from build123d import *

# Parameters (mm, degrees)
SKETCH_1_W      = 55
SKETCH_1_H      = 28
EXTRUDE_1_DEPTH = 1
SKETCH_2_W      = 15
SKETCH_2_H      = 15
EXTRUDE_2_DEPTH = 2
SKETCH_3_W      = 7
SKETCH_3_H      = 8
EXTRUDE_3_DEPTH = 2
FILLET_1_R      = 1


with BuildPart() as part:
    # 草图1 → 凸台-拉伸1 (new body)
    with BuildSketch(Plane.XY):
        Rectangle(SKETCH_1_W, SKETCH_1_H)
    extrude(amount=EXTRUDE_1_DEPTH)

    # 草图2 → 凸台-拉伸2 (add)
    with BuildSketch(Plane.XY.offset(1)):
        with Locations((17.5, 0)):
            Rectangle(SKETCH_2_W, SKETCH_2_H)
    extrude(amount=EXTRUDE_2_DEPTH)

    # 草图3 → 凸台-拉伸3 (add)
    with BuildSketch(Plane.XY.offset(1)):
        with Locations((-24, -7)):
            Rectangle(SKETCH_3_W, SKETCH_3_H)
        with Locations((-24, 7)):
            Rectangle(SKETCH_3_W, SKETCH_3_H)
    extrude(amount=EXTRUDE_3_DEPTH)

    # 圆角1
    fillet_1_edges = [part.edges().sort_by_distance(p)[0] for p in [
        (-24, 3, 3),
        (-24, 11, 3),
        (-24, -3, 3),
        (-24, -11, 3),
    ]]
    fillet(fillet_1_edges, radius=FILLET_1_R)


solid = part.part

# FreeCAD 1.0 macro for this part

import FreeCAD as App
import Part
import Sketcher

V = App.Vector


def edges_at(feature, points):
    """Names of the edges that pass closest to the given points."""
    edges = feature.Shape.Edges
    near = lambda p: min(range(len(edges)), key=lambda i: edges[i].distToShape(Part.Vertex(*p))[0])
    return sorted({f"Edge{near(p) + 1}" for p in points})


def add_polygon(sketch, points):
    """Adds a closed chain of lines whose ends are joined by coincident constraints."""
    first, n = sketch.GeometryCount, len(points)
    for a, b in zip(points, points[1:] + points[:1]):
        sketch.addGeometry(Part.LineSegment(App.Vector(*a, 0), App.Vector(*b, 0)), False)
    for i in range(n):
        sketch.addConstraint(Sketcher.Constraint("Coincident", first + i, 2, first + (i + 1) % n, 1))

doc = App.newDocument("Part")
body = doc.addObject("PartDesign::Body", "Body")

sketch1 = body.newObject("Sketcher::SketchObject", "Sketch")
sketch1.AttachmentSupport = (doc.getObject("XY_Plane"), [""])
sketch1.MapMode = "FlatFace"
add_polygon(sketch1, [(-28, 14), (-28, -14), (28, -14), (28, 14)])
sketch1.addConstraint([
    Sketcher.Constraint("Vertical", 0),
    Sketcher.Constraint("Horizontal", 1),
    Sketcher.Constraint("Vertical", 2),
    Sketcher.Constraint("Horizontal", 3),
    Sketcher.Constraint("Symmetric", 0, 2, 2, 2, -1, 1),
    Sketcher.Constraint("DistanceX", 1, 1, 1, 2, 55.0),
    Sketcher.Constraint("DistanceY", 0, 2, 0, 1, 28.0),
])
pad1 = body.newObject("PartDesign::Pad", "Pad")
pad1.Profile = sketch1
pad1.Length = 1

sketch2 = body.newObject("Sketcher::SketchObject", "Sketch001")
sketch2.AttachmentSupport = (doc.getObject("XY_Plane"), [""])
sketch2.MapMode = "FlatFace"
sketch2.AttachmentOffset = App.Placement(V(0, 0, 1), App.Rotation())
add_polygon(sketch2, [(10, 8), (10, -8), (25, -8), (25, 8)])
sketch2.addConstraint([
    Sketcher.Constraint("Vertical", 0),
    Sketcher.Constraint("Horizontal", 1),
    Sketcher.Constraint("Vertical", 2),
    Sketcher.Constraint("Horizontal", 3),
    Sketcher.Constraint("Equal", 3, 0),
    Sketcher.Constraint("DistanceX", 1, 1, 1, 2, 15.0),
    Sketcher.Constraint("DistanceX", -1, 1, 0, 2, 10.0),
    Sketcher.Constraint("DistanceY", 0, 2, -1, 1, 7.5),
])
pad2 = body.newObject("PartDesign::Pad", "Pad001")
pad2.Profile = sketch2
pad2.Length = 2

sketch3 = body.newObject("Sketcher::SketchObject", "Sketch002")
sketch3.AttachmentSupport = (doc.getObject("XY_Plane"), [""])
sketch3.MapMode = "FlatFace"
sketch3.AttachmentOffset = App.Placement(V(0, 0, 1), App.Rotation())
add_polygon(sketch3, [(-28, -3), (-28, -11), (-20, -11), (-20, -3)])
add_polygon(sketch3, [(-28, 11), (-28, 3), (-20, 3), (-20, 11)])
sketch3.addConstraint([
    Sketcher.Constraint("Vertical", 0),
    Sketcher.Constraint("Horizontal", 1),
    Sketcher.Constraint("Vertical", 2),
    Sketcher.Constraint("Horizontal", 3),
    Sketcher.Constraint("Vertical", 4),
    Sketcher.Constraint("Horizontal", 5),
    Sketcher.Constraint("Vertical", 6),
    Sketcher.Constraint("Horizontal", 7),
    Sketcher.Constraint("Symmetric", 3, 2, 4, 2, -1),
    Sketcher.Constraint("Symmetric", 1, 2, 6, 2, -1),
    Sketcher.Constraint("DistanceX", 1, 1, 1, 2, 7.0),
    Sketcher.Constraint("DistanceY", 0, 2, 0, 1, 8.0),
    Sketcher.Constraint("DistanceY", 0, 2, -1, 1, 11.0),
    Sketcher.Constraint("DistanceX", 0, 2, -1, 1, 27.5),
])
pad3 = body.newObject("PartDesign::Pad", "Pad002")
pad3.Profile = sketch3
pad3.Length = 2
doc.recompute()

fillet = body.newObject("PartDesign::Fillet", "Fillet")
fillet.Base = (pad3, edges_at(pad3, [
    (-24, 3, 3),
    (-24, 11, 3),
    (-24, -3, 3),
    (-24, -11, 3),
]))
fillet.Radius = 1

doc.recompute()
